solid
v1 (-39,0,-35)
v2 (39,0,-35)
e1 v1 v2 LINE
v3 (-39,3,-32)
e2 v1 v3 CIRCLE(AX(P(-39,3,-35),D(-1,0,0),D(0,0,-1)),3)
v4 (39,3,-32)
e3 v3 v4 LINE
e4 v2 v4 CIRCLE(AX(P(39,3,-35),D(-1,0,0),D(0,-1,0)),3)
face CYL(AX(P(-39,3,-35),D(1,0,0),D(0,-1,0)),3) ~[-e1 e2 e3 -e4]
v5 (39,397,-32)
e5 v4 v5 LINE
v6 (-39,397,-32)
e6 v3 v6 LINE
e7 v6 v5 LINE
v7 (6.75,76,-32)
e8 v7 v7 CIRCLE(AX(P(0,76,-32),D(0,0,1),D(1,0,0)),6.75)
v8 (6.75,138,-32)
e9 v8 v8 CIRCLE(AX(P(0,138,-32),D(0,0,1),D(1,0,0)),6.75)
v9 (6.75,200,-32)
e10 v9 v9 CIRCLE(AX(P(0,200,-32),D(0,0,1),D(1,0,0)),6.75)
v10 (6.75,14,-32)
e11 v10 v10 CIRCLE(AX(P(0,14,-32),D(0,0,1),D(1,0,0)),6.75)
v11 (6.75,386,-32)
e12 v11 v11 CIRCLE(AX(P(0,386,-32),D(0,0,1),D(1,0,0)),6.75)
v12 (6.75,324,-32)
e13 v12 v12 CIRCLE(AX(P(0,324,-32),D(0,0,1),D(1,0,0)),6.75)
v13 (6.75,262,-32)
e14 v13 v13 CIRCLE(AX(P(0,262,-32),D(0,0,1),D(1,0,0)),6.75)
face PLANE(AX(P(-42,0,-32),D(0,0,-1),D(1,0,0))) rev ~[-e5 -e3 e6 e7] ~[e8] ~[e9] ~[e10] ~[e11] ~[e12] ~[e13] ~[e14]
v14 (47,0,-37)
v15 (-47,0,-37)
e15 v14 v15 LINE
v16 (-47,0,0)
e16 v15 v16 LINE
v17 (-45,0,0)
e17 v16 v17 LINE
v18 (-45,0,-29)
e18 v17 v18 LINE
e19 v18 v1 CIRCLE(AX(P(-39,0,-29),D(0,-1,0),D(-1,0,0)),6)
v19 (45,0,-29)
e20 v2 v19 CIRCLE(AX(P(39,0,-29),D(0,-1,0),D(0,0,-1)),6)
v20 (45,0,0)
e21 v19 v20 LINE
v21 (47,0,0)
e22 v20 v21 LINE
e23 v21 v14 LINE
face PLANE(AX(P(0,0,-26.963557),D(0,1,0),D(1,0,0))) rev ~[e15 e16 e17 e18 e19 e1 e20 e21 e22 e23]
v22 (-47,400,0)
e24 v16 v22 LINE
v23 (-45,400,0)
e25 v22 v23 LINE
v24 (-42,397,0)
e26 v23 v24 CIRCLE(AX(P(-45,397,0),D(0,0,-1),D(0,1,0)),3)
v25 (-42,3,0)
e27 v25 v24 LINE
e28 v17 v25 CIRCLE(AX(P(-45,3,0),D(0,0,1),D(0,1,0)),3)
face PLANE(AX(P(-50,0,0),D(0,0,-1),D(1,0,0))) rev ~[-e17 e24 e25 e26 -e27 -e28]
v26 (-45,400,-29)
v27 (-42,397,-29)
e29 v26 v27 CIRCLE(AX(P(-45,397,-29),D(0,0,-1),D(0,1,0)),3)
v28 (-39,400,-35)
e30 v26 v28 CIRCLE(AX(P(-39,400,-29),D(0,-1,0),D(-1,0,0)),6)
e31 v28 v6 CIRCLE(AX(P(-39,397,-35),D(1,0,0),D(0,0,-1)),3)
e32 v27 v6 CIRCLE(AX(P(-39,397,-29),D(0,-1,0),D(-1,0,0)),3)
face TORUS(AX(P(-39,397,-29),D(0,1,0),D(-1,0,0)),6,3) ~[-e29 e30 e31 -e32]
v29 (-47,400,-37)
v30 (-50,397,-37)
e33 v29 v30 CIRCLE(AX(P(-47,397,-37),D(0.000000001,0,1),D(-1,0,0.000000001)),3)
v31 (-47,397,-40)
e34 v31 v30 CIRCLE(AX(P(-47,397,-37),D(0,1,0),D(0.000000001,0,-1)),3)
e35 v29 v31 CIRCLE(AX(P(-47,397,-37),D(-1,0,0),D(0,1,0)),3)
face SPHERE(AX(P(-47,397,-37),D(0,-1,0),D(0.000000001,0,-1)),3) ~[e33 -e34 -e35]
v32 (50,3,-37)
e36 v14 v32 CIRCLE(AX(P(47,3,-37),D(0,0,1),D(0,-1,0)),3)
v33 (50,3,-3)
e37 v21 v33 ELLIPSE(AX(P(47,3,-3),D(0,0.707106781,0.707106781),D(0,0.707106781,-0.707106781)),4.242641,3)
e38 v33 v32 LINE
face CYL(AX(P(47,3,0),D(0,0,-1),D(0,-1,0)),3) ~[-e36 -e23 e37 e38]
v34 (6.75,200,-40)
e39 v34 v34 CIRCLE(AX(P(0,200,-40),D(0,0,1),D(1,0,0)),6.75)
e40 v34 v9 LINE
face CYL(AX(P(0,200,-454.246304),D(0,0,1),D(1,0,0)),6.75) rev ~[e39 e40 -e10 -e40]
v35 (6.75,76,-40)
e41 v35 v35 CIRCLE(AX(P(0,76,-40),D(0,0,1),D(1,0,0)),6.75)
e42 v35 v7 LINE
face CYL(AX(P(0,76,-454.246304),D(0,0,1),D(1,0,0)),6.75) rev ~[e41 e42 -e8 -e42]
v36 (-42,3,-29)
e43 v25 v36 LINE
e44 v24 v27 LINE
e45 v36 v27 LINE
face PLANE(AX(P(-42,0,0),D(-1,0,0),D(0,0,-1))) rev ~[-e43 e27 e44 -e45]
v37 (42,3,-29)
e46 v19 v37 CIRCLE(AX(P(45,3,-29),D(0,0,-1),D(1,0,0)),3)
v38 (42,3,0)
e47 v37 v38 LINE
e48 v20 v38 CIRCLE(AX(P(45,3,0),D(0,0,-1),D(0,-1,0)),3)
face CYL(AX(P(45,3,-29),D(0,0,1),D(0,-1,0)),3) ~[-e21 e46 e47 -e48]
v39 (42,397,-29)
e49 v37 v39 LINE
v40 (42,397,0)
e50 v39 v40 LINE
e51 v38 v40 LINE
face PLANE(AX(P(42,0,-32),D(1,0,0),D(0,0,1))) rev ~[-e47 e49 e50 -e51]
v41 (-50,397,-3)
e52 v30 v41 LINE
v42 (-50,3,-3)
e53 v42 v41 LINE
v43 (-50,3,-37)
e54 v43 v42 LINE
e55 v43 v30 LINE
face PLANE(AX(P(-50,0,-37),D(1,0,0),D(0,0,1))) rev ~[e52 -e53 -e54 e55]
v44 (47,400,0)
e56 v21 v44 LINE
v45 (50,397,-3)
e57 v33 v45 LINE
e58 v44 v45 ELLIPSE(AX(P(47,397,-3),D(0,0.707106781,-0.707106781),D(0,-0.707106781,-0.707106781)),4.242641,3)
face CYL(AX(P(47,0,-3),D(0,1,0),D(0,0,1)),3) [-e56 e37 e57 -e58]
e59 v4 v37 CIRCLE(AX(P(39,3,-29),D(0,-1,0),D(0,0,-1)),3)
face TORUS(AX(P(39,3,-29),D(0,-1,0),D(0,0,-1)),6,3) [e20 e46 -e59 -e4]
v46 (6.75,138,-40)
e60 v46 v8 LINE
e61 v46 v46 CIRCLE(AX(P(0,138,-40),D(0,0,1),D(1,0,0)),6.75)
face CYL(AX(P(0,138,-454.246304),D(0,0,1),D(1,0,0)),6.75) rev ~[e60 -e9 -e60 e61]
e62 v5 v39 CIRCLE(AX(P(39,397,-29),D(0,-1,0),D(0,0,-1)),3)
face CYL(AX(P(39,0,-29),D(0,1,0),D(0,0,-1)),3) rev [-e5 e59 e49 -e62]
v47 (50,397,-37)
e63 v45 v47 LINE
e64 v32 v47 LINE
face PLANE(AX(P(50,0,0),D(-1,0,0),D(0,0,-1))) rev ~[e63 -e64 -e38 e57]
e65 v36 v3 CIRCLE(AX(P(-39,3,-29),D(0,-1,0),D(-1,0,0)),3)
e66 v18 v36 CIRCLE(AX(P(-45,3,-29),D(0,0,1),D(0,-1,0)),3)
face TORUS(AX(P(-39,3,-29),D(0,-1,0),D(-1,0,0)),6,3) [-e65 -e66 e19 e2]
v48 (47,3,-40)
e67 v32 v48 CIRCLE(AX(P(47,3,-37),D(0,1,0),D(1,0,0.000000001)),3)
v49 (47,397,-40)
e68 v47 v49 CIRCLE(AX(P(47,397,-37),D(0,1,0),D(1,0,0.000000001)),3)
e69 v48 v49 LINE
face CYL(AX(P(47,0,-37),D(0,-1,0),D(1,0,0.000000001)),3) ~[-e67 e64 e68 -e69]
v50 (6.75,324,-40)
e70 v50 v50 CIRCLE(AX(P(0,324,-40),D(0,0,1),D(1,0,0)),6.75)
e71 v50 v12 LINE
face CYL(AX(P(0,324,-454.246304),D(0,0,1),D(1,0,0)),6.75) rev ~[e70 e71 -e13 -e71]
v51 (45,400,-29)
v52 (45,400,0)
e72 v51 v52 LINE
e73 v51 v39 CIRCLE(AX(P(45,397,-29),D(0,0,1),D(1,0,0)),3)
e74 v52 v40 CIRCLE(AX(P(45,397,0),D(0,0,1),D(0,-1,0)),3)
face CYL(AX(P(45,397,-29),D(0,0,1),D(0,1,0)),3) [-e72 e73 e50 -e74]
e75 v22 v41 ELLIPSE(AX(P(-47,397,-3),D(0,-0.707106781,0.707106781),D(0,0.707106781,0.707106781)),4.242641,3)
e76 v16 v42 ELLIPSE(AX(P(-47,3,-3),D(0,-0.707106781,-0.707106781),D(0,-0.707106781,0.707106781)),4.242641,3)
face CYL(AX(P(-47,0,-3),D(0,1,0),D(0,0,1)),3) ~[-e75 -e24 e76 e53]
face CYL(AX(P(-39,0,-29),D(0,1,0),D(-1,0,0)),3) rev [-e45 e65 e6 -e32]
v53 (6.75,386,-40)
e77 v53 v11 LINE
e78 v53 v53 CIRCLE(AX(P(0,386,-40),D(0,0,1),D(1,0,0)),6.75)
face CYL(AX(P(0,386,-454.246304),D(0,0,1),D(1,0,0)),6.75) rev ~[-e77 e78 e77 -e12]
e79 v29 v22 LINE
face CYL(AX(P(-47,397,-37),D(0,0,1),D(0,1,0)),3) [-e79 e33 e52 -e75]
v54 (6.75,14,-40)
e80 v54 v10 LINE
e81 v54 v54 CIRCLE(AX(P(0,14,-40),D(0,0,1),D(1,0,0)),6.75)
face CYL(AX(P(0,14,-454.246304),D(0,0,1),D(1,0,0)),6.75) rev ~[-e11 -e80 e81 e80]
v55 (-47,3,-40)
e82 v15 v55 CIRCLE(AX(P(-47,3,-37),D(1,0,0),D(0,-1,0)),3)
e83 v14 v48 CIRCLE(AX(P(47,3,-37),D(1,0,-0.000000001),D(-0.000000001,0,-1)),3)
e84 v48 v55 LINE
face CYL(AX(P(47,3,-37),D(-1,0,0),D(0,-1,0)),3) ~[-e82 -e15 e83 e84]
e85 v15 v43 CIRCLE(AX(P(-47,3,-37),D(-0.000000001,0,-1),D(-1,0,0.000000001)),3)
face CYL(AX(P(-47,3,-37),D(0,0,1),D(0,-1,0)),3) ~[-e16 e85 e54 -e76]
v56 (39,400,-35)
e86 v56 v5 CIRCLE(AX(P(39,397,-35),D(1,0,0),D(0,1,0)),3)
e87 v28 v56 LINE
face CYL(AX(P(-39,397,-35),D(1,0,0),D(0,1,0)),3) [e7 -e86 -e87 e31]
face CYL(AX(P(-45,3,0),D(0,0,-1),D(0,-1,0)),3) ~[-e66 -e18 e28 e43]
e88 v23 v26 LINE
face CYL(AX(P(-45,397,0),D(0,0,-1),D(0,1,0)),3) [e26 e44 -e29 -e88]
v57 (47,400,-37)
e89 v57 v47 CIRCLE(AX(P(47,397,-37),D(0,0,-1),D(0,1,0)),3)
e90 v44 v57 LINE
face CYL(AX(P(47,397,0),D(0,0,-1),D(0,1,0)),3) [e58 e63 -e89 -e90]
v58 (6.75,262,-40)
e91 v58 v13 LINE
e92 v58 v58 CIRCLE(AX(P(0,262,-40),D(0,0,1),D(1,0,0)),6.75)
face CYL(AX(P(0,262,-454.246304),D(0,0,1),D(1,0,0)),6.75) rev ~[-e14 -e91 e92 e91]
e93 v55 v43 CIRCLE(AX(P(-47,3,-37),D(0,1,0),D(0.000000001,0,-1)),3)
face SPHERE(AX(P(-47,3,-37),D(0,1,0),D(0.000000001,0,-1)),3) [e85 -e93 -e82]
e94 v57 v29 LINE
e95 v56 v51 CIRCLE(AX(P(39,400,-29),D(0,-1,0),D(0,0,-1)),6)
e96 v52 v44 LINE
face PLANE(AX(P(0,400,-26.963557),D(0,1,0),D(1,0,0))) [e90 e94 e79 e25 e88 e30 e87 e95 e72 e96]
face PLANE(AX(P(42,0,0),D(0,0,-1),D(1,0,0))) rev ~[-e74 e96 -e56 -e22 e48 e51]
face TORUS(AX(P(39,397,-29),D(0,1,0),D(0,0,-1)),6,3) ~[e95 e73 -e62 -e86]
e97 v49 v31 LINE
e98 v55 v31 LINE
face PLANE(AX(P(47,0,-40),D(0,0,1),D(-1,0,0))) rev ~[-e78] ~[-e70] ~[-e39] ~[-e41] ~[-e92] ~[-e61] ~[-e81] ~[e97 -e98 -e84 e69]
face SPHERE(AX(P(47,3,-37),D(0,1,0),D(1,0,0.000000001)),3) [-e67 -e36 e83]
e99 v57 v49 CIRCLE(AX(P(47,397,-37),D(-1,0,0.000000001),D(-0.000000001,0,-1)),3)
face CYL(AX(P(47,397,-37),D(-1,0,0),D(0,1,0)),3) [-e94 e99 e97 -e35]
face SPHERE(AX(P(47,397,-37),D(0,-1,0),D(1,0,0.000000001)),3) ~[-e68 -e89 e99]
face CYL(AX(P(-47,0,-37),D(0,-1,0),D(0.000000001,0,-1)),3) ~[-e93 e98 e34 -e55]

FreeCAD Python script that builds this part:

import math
import FreeCAD as App
import Part
import Sketcher
Q = App.Units.Quantity


def edges_at(feature, points):
    """Names of the edges that pass closest to the given points."""
    edges = feature.Shape.Edges
    near = lambda p: min(range(len(edges)), key=lambda i: edges[i].distToShape(Part.Vertex(*p))[0])
    return sorted({f"Edge{near(p) + 1}" for p in points})

doc = App.newDocument("Part")
body = doc.addObject("PartDesign::Body", "Body")

# Sketch on XZ plane
sketch1 = body.newObject("Sketcher::SketchObject", "Sketch")
sketch1.AttachmentSupport = (doc.getObject("XZ_Plane"), [""])
sketch1.MapMode = "FlatFace"
sketch1.addGeometry([
    Part.LineSegment(App.Vector(50, 0, 0), App.Vector(50, -37, 0)),  # 0
    Part.ArcOfCircle(Part.Circle(App.Vector(47, -37, 0), App.Vector(0, 0, 1), 3), math.radians(-90), math.radians(0)),  # 1
    Part.LineSegment(App.Vector(47, -40, 0), App.Vector(-47, -40, 0)),  # 2
    Part.ArcOfCircle(Part.Circle(App.Vector(-47, -37, 0), App.Vector(0, 0, 1), 3), math.radians(180), math.radians(270)),  # 3
    Part.LineSegment(App.Vector(-50, -37, 0), App.Vector(-50, 0, 0)),  # 4
    Part.LineSegment(App.Vector(-50, 0, 0), App.Vector(-42, 0, 0)),  # 5
    Part.LineSegment(App.Vector(-42, 0, 0), App.Vector(-42, -32, 0)),  # 6
    Part.LineSegment(App.Vector(-42, -32, 0), App.Vector(42, -32, 0)),  # 7
    Part.LineSegment(App.Vector(42, -32, 0), App.Vector(42, 0, 0)),  # 8
    Part.LineSegment(App.Vector(42, 0, 0), App.Vector(50, 0, 0)),  # 9
], False)
sketch1.addConstraint([
    Sketcher.Constraint("Tangent", 0, 2, 1, 2),
    Sketcher.Constraint("Tangent", 1, 1, 2, 1),
    Sketcher.Constraint("Tangent", 2, 2, 3, 2),
    Sketcher.Constraint("Tangent", 3, 1, 4, 1),
    Sketcher.Constraint("Coincident", 4, 2, 5, 1),
    Sketcher.Constraint("Coincident", 5, 2, 6, 1),
    Sketcher.Constraint("Coincident", 6, 2, 7, 1),
    Sketcher.Constraint("Coincident", 7, 2, 8, 1),
    Sketcher.Constraint("Coincident", 8, 2, 9, 1),
    Sketcher.Constraint("Coincident", 9, 2, 0, 1),
    Sketcher.Constraint("Vertical", 0),
    Sketcher.Constraint("Horizontal", 2),
    Sketcher.Constraint("Vertical", 4),
    Sketcher.Constraint("Horizontal", 5),
    Sketcher.Constraint("Vertical", 6),
    Sketcher.Constraint("Horizontal", 7),
    Sketcher.Constraint("Vertical", 8),
    Sketcher.Constraint("Horizontal", 9),
    Sketcher.Constraint("Equal", 1, 3),
    Sketcher.Constraint("Symmetric", 5, 2, 8, 2, -1, 1),
    Sketcher.Constraint("Symmetric", 4, 2, 9, 2, -2),
    Sketcher.Constraint("Radius", 1, Q("3 mm")),
    Sketcher.Constraint("DistanceX", 2, 2, 2, 1, Q("94 mm")),
    Sketcher.Constraint("DistanceX", 5, 1, 5, 2, Q("8 mm")),
    Sketcher.Constraint("DistanceY", 0, 2, 0, 1, Q("37 mm")),
    Sketcher.Constraint("DistanceY", 6, 2, 6, 1, Q("32 mm")),
])
pad1 = body.newObject("PartDesign::Pad", "Pad")
pad1.Profile = sketch1
pad1.Length = 400
pad1.Reversed = True
doc.recompute()

fillet = body.newObject("PartDesign::Fillet", "Fillet")
fillet.Base = (pad1, edges_at(pad1, [(42, 200, -32), (-42, 200, -32)]))
fillet.Radius = 3
doc.recompute()

fillet2 = body.newObject("PartDesign::Fillet", "Fillet001")
fillet2.Base = (fillet, edges_at(fillet, [
    (-50, 0, -18.5),
    (-49.121, 0, -39.121),
    (0, 0, -40),
    (49.121, 0, -39.121),
    (50, 0, -18.5),
    (50, 400, -18.5),
    (-50, 200, 0),
    (50, 200, 0),
    (49.121, 400, -39.121),
    (0, 400, -40),
    (-49.121, 400, -39.121),
    (42, 0, -14.5),
    (-50, 400, -18.5),
    (42, 400, -14.5),
    (0, 0, -32),
    (0, 400, -32),
    (41.121, 0, -31.121),
    (41.121, 400, -31.121),
    (-41.121, 0, -31.121),
    (-41.121, 400, -31.121),
    (-42, 400, -14.5),
    (-42, 0, -14.5),
]))
fillet2.Radius = 3

# Sketch on XY plane
sketch2 = body.newObject("Sketcher::SketchObject", "Sketch001")
sketch2.AttachmentSupport = (doc.getObject("XY_Plane"), [""])
sketch2.MapMode = "FlatFace"
sketch2.AttachmentOffset = App.Placement(App.Vector(0, 0, -40), App.Rotation())
sketch2.addGeometry([
    Part.Circle(App.Vector(0, 386, 0), App.Vector(0, 0, 1), 7),  # 0
    Part.Circle(App.Vector(0, 324, 0), App.Vector(0, 0, 1), 7),  # 1
    Part.Circle(App.Vector(0, 262, 0), App.Vector(0, 0, 1), 7),  # 2
    Part.Circle(App.Vector(0, 200, 0), App.Vector(0, 0, 1), 7),  # 3
    Part.Circle(App.Vector(0, 138, 0), App.Vector(0, 0, 1), 7),  # 4
    Part.Circle(App.Vector(0, 76, 0), App.Vector(0, 0, 1), 7),  # 5
    Part.Circle(App.Vector(0, 14, 0), App.Vector(0, 0, 1), 7),  # 6
], False)
sketch2.addConstraint([
    Sketcher.Constraint("Equal", 0, 1),
    Sketcher.Constraint("Equal", 1, 2),
    Sketcher.Constraint("Equal", 2, 3),
    Sketcher.Constraint("Equal", 3, 4),
    Sketcher.Constraint("Equal", 4, 5),
    Sketcher.Constraint("Equal", 5, 6),
    Sketcher.Constraint("PointOnObject", 0, 3, -2),
    Sketcher.Constraint("PointOnObject", 1, 3, -2),
    Sketcher.Constraint("PointOnObject", 2, 3, -2),
    Sketcher.Constraint("PointOnObject", 3, 3, -2),
    Sketcher.Constraint("PointOnObject", 4, 3, -2),
    Sketcher.Constraint("PointOnObject", 5, 3, -2),
    Sketcher.Constraint("PointOnObject", 6, 3, -2),
    Sketcher.Constraint("Diameter", 0, Q("13.5 mm")),
    Sketcher.Constraint("DistanceY", -1, 1, 0, 3, Q("386 mm")),
    Sketcher.Constraint("DistanceY", -1, 1, 1, 3, Q("324 mm")),
    Sketcher.Constraint("DistanceY", -1, 1, 2, 3, Q("262 mm")),
    Sketcher.Constraint("DistanceY", -1, 1, 3, 3, Q("200 mm")),
    Sketcher.Constraint("DistanceY", -1, 1, 4, 3, Q("138 mm")),
    Sketcher.Constraint("DistanceY", -1, 1, 5, 3, Q("76 mm")),
    Sketcher.Constraint("DistanceY", -1, 1, 6, 3, Q("14 mm")),
])
doc.recompute()
hole = body.newObject("PartDesign::Hole", "Hole")
hole.Profile = sketch2
hole.ThreadType = "None"
hole.Diameter = 13.5
hole.DepthType = "ThroughAll"
hole.Reversed = True

doc.recompute()
